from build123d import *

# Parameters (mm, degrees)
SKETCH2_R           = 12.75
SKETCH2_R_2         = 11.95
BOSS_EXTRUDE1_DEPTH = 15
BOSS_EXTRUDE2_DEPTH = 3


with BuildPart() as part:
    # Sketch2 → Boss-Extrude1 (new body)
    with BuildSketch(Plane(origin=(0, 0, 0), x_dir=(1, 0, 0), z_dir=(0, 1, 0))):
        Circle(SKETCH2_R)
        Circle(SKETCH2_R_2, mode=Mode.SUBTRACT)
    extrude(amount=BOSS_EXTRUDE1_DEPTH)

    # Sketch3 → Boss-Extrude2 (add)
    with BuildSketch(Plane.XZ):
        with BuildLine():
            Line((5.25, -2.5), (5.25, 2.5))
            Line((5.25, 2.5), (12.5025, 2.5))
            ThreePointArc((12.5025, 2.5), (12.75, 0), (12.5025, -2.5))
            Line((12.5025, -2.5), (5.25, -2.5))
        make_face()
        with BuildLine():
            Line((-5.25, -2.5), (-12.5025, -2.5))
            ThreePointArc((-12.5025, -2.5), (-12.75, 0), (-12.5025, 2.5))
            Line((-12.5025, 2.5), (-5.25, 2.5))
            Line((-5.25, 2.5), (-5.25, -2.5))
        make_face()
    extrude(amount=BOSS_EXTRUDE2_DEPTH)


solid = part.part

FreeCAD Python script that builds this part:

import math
import FreeCAD as App
import Part
import Sketcher
from FreeCAD import Vector
Q = App.Units.Quantity

doc = App.newDocument("Part")
body = doc.addObject("PartDesign::Body", "Body")

sketch1 = doc.addObject("Sketcher::SketchObject", "Sketch")
body.addObject(sketch1)
sketch1.AttachmentSupport = (doc.XZ_Plane, [""])
sketch1.MapMode = "FlatFace"
sketch1.addGeometry(Part.Circle(Vector(0, 0, 0), Vector(0, 0, 1), 13), False)
sketch1.addGeometry(Part.Circle(Vector(0, 0, 0), Vector(0, 0, 1), 12), False)
sketch1.addConstraint(Sketcher.Constraint("Coincident", 0, 3, -1, 1))
sketch1.addConstraint(Sketcher.Constraint("Coincident", 1, 3, -1, 1))
sketch1.addConstraint(Sketcher.Constraint("Diameter", 0, Q("25.5 mm")))
sketch1.addConstraint(Sketcher.Constraint("Diameter", 1, Q("23.9 mm")))
pad1 = doc.addObject("PartDesign::Pad", "Pad")
body.addObject(pad1)
pad1.Profile = sketch1
pad1.Length = 15
pad1.Reversed = True

sketch2 = doc.addObject("Sketcher::SketchObject", "Sketch001")
body.addObject(sketch2)
sketch2.AttachmentSupport = (doc.XZ_Plane, [""])
sketch2.MapMode = "FlatFace"
sketch2.addGeometry(Part.LineSegment(Vector(5, 2, 0), Vector(5, -2, 0)), False)
sketch2.addGeometry(Part.LineSegment(Vector(5, -2, 0), Vector(13, -2, 0)), False)
sketch2.addGeometry(Part.ArcOfCircle(Part.Circle(Vector(0, 0, 0), Vector(0, 0, 1), 13), math.radians(-11), math.radians(11)), False)
sketch2.addGeometry(Part.LineSegment(Vector(13, 2, 0), Vector(5, 2, 0)), False)
sketch2.addGeometry(Part.LineSegment(Vector(-13, -2, 0), Vector(-5, -2, 0)), False)
sketch2.addGeometry(Part.LineSegment(Vector(-5, -2, 0), Vector(-5, 2, 0)), False)
sketch2.addGeometry(Part.LineSegment(Vector(-5, 2, 0), Vector(-13, 2, 0)), False)
sketch2.addGeometry(Part.ArcOfCircle(Part.Circle(Vector(0, 0, 0), Vector(0, 0, 1), 13), math.radians(169), math.radians(191)), False)
sketch2.addConstraint(Sketcher.Constraint("Coincident", 0, 2, 1, 1))
sketch2.addConstraint(Sketcher.Constraint("Coincident", 1, 2, 2, 1))
sketch2.addConstraint(Sketcher.Constraint("Coincident", 2, 2, 3, 1))
sketch2.addConstraint(Sketcher.Constraint("Coincident", 3, 2, 0, 1))
sketch2.addConstraint(Sketcher.Constraint("Coincident", 4, 2, 5, 1))
sketch2.addConstraint(Sketcher.Constraint("Coincident", 5, 2, 6, 1))
sketch2.addConstraint(Sketcher.Constraint("Coincident", 6, 2, 7, 1))
sketch2.addConstraint(Sketcher.Constraint("Coincident", 7, 2, 4, 1))
sketch2.addConstraint(Sketcher.Constraint("Vertical", 0))
sketch2.addConstraint(Sketcher.Constraint("Horizontal", 1))
sketch2.addConstraint(Sketcher.Constraint("Horizontal", 3))
sketch2.addConstraint(Sketcher.Constraint("Horizontal", 4))
sketch2.addConstraint(Sketcher.Constraint("Vertical", 5))
sketch2.addConstraint(Sketcher.Constraint("Horizontal", 6))
sketch2.addConstraint(Sketcher.Constraint("Equal", 2, 7))
sketch2.addConstraint(Sketcher.Constraint("Symmetric", 2, 3, 7, 3, -1, 1))
sketch2.addConstraint(Sketcher.Constraint("Symmetric", 3, 2, 4, 2, -1, 1))
sketch2.addConstraint(Sketcher.Constraint("Symmetric", 2, 2, 6, 2, -2))
sketch2.addConstraint(Sketcher.Constraint("Horizontal", 1, 2, 4, 2))
sketch2.addConstraint(Sketcher.Constraint("DistanceY", 0, 2, 0, 1, Q("5 mm")))
sketch2.addConstraint(Sketcher.Constraint("DistanceX", 4, 2, 0, 2, Q("10.5 mm")))
sketch2.addConstraint(Sketcher.Constraint("DistanceX", 1, 1, 1, 2, Q("7.2525 mm")))
sketch2.addConstraint(Sketcher.Constraint("Radius", 2, Q("12.750013 mm")))
pad2 = doc.addObject("PartDesign::Pad", "Pad001")
body.addObject(pad2)
pad2.Profile = sketch2
pad2.Length = 3

doc.recompute()
